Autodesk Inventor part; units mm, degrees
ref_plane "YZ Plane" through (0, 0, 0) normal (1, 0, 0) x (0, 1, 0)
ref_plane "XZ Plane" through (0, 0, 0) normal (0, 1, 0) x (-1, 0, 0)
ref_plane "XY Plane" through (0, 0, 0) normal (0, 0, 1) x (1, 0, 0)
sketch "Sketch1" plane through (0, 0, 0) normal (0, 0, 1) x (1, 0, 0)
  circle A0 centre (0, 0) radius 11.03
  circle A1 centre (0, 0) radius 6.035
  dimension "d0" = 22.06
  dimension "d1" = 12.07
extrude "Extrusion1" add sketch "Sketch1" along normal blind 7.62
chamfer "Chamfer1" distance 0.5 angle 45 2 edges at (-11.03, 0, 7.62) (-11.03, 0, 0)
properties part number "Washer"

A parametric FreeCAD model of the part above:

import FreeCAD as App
import Part
import Sketcher

V = App.Vector


def edges_at(feature, points):
    """Names of the edges that pass closest to the given points."""
    edges = feature.Shape.Edges
    near = lambda p: min(range(len(edges)), key=lambda i: edges[i].distToShape(Part.Vertex(*p))[0])
    return sorted({f"Edge{near(p) + 1}" for p in points})

doc = App.newDocument("Part")
body = doc.addObject("PartDesign::Body", "Body")

# Sketch on XY plane
sketch1 = body.newObject("Sketcher::SketchObject", "Sketch")
sketch1.AttachmentSupport = (doc.getObject("XY_Plane"), [""])
sketch1.MapMode = "FlatFace"
sketch1.addGeometry([
    Part.Circle(V(0, 0, 0), V(0, 0, 1), 11),
    Part.Circle(V(0, 0, 0), V(0, 0, 1), 6),
], False)
sketch1.addConstraint([
    Sketcher.Constraint("Coincident", 0, 3, -1, 1),
    Sketcher.Constraint("Coincident", 1, 3, -1, 1),
    Sketcher.Constraint("Diameter", 0, 22.06),
    Sketcher.Constraint("Diameter", 1, 12.07),
])
pad1 = body.newObject("PartDesign::Pad", "Pad")
pad1.Profile = sketch1
pad1.Length = 7.62
doc.recompute()

chamfer = body.newObject("PartDesign::Chamfer", "Chamfer")
chamfer.Base = (pad1, edges_at(pad1, [(-11.03, 0, 7.62), (-11.03, 0, 0)]))
chamfer.Size = 0.5

doc.recompute()
